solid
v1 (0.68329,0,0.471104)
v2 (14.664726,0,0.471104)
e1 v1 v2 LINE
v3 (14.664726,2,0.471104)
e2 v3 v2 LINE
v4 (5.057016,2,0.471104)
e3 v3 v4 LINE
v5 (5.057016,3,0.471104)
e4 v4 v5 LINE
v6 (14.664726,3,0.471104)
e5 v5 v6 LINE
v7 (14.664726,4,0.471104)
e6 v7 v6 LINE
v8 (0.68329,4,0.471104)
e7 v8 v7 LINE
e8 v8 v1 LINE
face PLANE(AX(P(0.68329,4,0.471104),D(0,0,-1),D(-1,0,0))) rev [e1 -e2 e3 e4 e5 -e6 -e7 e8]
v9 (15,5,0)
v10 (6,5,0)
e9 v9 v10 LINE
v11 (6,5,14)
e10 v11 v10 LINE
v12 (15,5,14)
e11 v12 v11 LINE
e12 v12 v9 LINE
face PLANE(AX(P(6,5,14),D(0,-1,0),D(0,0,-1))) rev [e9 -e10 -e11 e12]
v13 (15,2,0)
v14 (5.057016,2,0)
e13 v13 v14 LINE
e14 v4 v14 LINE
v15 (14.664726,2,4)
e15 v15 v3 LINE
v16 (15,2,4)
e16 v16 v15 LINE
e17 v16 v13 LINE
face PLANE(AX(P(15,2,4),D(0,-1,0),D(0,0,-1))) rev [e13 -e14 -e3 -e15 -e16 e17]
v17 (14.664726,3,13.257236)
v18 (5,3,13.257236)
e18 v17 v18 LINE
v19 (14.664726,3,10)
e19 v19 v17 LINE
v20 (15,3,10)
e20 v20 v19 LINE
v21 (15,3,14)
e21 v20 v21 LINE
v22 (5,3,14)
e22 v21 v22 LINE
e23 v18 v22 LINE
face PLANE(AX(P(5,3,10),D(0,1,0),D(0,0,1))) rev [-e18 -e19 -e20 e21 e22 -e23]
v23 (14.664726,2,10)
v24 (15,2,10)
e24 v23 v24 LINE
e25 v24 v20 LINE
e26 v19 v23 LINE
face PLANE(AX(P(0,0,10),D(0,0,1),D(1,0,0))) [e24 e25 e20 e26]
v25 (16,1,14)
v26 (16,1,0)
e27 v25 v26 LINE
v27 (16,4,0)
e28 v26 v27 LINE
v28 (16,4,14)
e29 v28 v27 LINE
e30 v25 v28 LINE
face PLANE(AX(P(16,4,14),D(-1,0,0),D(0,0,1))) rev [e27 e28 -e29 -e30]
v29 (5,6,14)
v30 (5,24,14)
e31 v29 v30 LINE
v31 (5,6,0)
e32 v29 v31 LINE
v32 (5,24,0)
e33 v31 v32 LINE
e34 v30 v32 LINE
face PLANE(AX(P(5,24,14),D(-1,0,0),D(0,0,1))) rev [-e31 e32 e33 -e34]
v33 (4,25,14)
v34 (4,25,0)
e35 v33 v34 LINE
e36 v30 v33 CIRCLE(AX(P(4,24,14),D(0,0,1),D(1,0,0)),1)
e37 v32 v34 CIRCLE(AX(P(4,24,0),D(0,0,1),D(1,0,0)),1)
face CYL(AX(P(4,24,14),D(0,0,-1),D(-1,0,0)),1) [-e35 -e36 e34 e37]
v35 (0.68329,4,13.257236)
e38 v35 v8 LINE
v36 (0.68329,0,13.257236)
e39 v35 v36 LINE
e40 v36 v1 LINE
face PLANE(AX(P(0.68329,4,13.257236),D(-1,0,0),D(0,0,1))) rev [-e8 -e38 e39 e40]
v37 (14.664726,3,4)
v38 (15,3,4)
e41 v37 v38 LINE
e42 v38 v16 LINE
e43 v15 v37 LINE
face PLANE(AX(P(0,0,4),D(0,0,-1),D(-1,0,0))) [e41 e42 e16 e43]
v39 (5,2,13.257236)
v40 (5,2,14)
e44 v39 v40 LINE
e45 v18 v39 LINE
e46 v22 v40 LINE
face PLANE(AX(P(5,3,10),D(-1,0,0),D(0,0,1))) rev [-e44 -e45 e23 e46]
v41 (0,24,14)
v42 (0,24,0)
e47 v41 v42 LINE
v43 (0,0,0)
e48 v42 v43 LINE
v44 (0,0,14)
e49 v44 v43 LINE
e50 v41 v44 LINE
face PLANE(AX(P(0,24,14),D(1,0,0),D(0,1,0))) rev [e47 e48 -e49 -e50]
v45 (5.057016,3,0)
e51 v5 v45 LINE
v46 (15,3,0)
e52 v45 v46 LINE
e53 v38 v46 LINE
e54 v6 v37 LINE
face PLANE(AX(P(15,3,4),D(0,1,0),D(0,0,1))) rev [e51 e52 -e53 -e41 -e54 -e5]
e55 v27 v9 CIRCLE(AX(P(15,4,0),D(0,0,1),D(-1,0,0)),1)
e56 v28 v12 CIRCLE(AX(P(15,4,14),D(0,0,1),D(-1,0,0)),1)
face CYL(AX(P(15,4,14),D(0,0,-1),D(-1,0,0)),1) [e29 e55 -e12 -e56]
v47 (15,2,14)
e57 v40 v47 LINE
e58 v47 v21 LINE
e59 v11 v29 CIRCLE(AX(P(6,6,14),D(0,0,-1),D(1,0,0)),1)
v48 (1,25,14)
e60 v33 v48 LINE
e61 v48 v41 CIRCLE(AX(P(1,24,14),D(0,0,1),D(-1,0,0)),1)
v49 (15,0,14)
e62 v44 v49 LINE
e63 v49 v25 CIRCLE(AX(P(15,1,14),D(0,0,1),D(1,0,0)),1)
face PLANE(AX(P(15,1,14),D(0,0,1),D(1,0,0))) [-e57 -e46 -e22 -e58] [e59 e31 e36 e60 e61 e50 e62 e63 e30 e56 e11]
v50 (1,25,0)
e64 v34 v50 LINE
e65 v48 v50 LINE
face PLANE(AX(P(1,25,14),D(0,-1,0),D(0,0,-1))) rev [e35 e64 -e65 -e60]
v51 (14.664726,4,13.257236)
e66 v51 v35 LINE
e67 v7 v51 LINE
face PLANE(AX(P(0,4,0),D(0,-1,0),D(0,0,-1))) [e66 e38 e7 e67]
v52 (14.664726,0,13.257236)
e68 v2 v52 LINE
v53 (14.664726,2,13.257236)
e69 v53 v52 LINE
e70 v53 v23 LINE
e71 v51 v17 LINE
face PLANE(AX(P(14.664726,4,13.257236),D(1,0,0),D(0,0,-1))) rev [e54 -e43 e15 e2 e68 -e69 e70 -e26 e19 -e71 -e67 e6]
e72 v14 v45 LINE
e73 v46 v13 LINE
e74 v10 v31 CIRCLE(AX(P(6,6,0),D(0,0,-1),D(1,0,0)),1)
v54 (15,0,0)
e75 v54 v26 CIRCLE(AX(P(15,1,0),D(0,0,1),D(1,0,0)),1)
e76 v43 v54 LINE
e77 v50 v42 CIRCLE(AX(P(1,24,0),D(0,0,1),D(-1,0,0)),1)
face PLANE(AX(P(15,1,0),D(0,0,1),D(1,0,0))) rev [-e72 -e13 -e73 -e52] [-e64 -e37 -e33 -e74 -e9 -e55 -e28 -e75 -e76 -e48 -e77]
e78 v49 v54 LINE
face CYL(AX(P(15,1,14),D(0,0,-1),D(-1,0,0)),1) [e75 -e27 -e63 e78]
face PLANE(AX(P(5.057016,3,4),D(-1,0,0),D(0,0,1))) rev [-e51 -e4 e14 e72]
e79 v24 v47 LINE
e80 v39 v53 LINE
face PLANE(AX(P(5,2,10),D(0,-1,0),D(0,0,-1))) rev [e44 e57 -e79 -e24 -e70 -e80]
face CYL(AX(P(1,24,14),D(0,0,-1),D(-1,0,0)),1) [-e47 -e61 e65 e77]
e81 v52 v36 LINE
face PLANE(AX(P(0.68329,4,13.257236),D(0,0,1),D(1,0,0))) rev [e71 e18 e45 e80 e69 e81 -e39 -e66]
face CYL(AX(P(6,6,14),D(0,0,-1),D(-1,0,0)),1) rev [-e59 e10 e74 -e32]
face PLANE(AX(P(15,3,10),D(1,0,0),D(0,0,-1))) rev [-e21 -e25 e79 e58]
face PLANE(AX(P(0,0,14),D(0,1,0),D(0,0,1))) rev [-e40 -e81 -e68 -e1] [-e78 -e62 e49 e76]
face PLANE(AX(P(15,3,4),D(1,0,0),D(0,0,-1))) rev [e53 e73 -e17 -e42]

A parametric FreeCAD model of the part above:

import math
import FreeCAD as App
import Part
import Sketcher
Q = App.Units.Quantity

doc = App.newDocument("Part")
body = doc.addObject("PartDesign::Body", "Body")

sketch1 = body.newObject("Sketcher::SketchObject", "Sketch")
sketch1.AttachmentSupport = (doc.getObject("XY_Plane"), [""])
sketch1.MapMode = "FlatFace"
sketch1.addGeometry(Part.LineSegment(App.Vector(0, 24, 0), App.Vector(0, 0, 0)), False)
sketch1.addGeometry(Part.LineSegment(App.Vector(0, 0, 0), App.Vector(15, 0, 0)), False)
sketch1.addGeometry(Part.ArcOfCircle(Part.Circle(App.Vector(15, 1, 0), App.Vector(0, 0, 1), 1), math.radians(-90), math.radians(0)), False)
sketch1.addGeometry(Part.LineSegment(App.Vector(16, 1, 0), App.Vector(16, 4, 0)), False)
sketch1.addGeometry(Part.ArcOfCircle(Part.Circle(App.Vector(15, 4, 0), App.Vector(0, 0, 1), 1), math.radians(0), math.radians(90)), False)
sketch1.addGeometry(Part.LineSegment(App.Vector(15, 5, 0), App.Vector(6, 5, 0)), False)
sketch1.addGeometry(Part.ArcOfCircle(Part.Circle(App.Vector(6, 6, 0), App.Vector(0, 0, 1), 1), math.radians(-180), math.radians(-90)), False)
sketch1.addGeometry(Part.LineSegment(App.Vector(5, 6, 0), App.Vector(5, 24, 0)), False)
sketch1.addGeometry(Part.ArcOfCircle(Part.Circle(App.Vector(4, 24, 0), App.Vector(0, 0, 1), 1), math.radians(0), math.radians(90)), False)
sketch1.addGeometry(Part.LineSegment(App.Vector(4, 25, 0), App.Vector(1, 25, 0)), False)
sketch1.addGeometry(Part.ArcOfCircle(Part.Circle(App.Vector(1, 24, 0), App.Vector(0, 0, 1), 1), math.radians(90), math.radians(180)), False)
sketch1.addConstraint(Sketcher.Constraint("Coincident", 0, 2, 1, 1))
sketch1.addConstraint(Sketcher.Constraint("Tangent", 1, 2, 2, 1))
sketch1.addConstraint(Sketcher.Constraint("Tangent", 2, 2, 3, 1))
sketch1.addConstraint(Sketcher.Constraint("Tangent", 3, 2, 4, 1))
sketch1.addConstraint(Sketcher.Constraint("Tangent", 4, 2, 5, 1))
sketch1.addConstraint(Sketcher.Constraint("Tangent", 5, 2, 6, 2))
sketch1.addConstraint(Sketcher.Constraint("Tangent", 6, 1, 7, 1))
sketch1.addConstraint(Sketcher.Constraint("Tangent", 7, 2, 8, 1))
sketch1.addConstraint(Sketcher.Constraint("Tangent", 8, 2, 9, 1))
sketch1.addConstraint(Sketcher.Constraint("Tangent", 9, 2, 10, 1))
sketch1.addConstraint(Sketcher.Constraint("Tangent", 10, 2, 0, 1))
sketch1.addConstraint(Sketcher.Constraint("Vertical", 0))
sketch1.addConstraint(Sketcher.Constraint("Horizontal", 1))
sketch1.addConstraint(Sketcher.Constraint("Vertical", 3))
sketch1.addConstraint(Sketcher.Constraint("Horizontal", 5))
sketch1.addConstraint(Sketcher.Constraint("Vertical", 7))
sketch1.addConstraint(Sketcher.Constraint("Horizontal", 9))
sketch1.addConstraint(Sketcher.Constraint("Coincident", 0, 2, -1, 1))
sketch1.addConstraint(Sketcher.Constraint("Equal", 2, 4))
sketch1.addConstraint(Sketcher.Constraint("Equal", 4, 6))
sketch1.addConstraint(Sketcher.Constraint("Equal", 6, 8))
sketch1.addConstraint(Sketcher.Constraint("Equal", 8, 10))
sketch1.addConstraint(Sketcher.Constraint("Equal", 9, 3))
sketch1.addConstraint(Sketcher.Constraint("Radius", 2, Q("1 mm")))
sketch1.addConstraint(Sketcher.Constraint("DistanceX", 1, 1, 1, 2, Q("15 mm")))
sketch1.addConstraint(Sketcher.Constraint("DistanceX", 5, 2, 5, 1, Q("9 mm")))
sketch1.addConstraint(Sketcher.Constraint("DistanceY", 0, 2, 0, 1, Q("24 mm")))
pad1 = body.newObject("PartDesign::Pad", "Pad")
pad1.Profile = sketch1
pad1.Length = 14

sketch2 = body.newObject("Sketcher::SketchObject", "Sketch001")
sketch2.AttachmentSupport = (doc.getObject("XZ_Plane"), [""])
sketch2.MapMode = "FlatFace"
sketch2.addGeometry(Part.LineSegment(App.Vector(1, 13, 0), App.Vector(1, 0, 0)), False)
sketch2.addGeometry(Part.LineSegment(App.Vector(1, 0, 0), App.Vector(15, 0, 0)), False)
sketch2.addGeometry(Part.LineSegment(App.Vector(15, 0, 0), App.Vector(15, 13, 0)), False)
sketch2.addGeometry(Part.LineSegment(App.Vector(15, 13, 0), App.Vector(1, 13, 0)), False)
sketch2.addConstraint(Sketcher.Constraint("Coincident", 0, 2, 1, 1))
sketch2.addConstraint(Sketcher.Constraint("Coincident", 1, 2, 2, 1))
sketch2.addConstraint(Sketcher.Constraint("Coincident", 2, 2, 3, 1))
sketch2.addConstraint(Sketcher.Constraint("Coincident", 3, 2, 0, 1))
sketch2.addConstraint(Sketcher.Constraint("Vertical", 0))
sketch2.addConstraint(Sketcher.Constraint("Horizontal", 1))
sketch2.addConstraint(Sketcher.Constraint("Vertical", 2))
sketch2.addConstraint(Sketcher.Constraint("Horizontal", 3))
sketch2.addConstraint(Sketcher.Constraint("DistanceX", 1, 1, 1, 2, Q("13.981437 mm")))
sketch2.addConstraint(Sketcher.Constraint("DistanceY", 0, 2, 0, 1, Q("12.786132 mm")))
sketch2.addConstraint(Sketcher.Constraint("DistanceX", -1, 1, 0, 2, Q("0.68329 mm")))
sketch2.addConstraint(Sketcher.Constraint("DistanceY", -1, 1, 0, 2, Q("0.471104 mm")))
pocket1 = body.newObject("PartDesign::Pocket", "Pocket")
pocket1.Profile = sketch2
pocket1.Length = 4

sketch3 = body.newObject("Sketcher::SketchObject", "Sketch002")
sketch3.AttachmentSupport = (doc.getObject("XY_Plane"), [""])
sketch3.MapMode = "FlatFace"
sketch3.AttachmentOffset = App.Placement(App.Vector(0, 0, 14), App.Rotation())
sketch3.addGeometry(Part.LineSegment(App.Vector(5, 3, 0), App.Vector(5, 2, 0)), False)
sketch3.addGeometry(Part.LineSegment(App.Vector(5, 2, 0), App.Vector(15, 2, 0)), False)
sketch3.addGeometry(Part.LineSegment(App.Vector(15, 2, 0), App.Vector(15, 3, 0)), False)
sketch3.addGeometry(Part.LineSegment(App.Vector(15, 3, 0), App.Vector(5, 3, 0)), False)
sketch3.addConstraint(Sketcher.Constraint("Coincident", 0, 2, 1, 1))
sketch3.addConstraint(Sketcher.Constraint("Coincident", 1, 2, 2, 1))
sketch3.addConstraint(Sketcher.Constraint("Coincident", 2, 2, 3, 1))
sketch3.addConstraint(Sketcher.Constraint("Coincident", 3, 2, 0, 1))
sketch3.addConstraint(Sketcher.Constraint("Vertical", 0))
sketch3.addConstraint(Sketcher.Constraint("Horizontal", 1))
sketch3.addConstraint(Sketcher.Constraint("Vertical", 2))
sketch3.addConstraint(Sketcher.Constraint("Horizontal", 3))
sketch3.addConstraint(Sketcher.Constraint("DistanceX", 1, 1, 1, 2, Q("10 mm")))
sketch3.addConstraint(Sketcher.Constraint("DistanceY", 0, 2, 0, 1, Q("1 mm")))
sketch3.addConstraint(Sketcher.Constraint("DistanceX", -1, 1, 0, 2, Q("5 mm")))
sketch3.addConstraint(Sketcher.Constraint("DistanceY", -1, 1, 0, 2, Q("2 mm")))
pocket2 = body.newObject("PartDesign::Pocket", "Pocket001")
pocket2.Profile = sketch3
pocket2.Length = 4

sketch4 = body.newObject("Sketcher::SketchObject", "Sketch003")
sketch4.AttachmentSupport = (doc.getObject("XY_Plane"), [""])
sketch4.MapMode = "FlatFace"
sketch4.addGeometry(Part.LineSegment(App.Vector(15, 3, 0), App.Vector(15, 2, 0)), False)
sketch4.addGeometry(Part.LineSegment(App.Vector(15, 2, 0), App.Vector(7, 2, 0)), False)
sketch4.addGeometry(Part.LineSegment(App.Vector(7, 2, 0), App.Vector(7, 3, 0)), False)
sketch4.addGeometry(Part.LineSegment(App.Vector(7, 3, 0), App.Vector(15, 3, 0)), False)
sketch4.addConstraint(Sketcher.Constraint("Coincident", 0, 2, 1, 1))
sketch4.addConstraint(Sketcher.Constraint("Coincident", 1, 2, 2, 1))
sketch4.addConstraint(Sketcher.Constraint("Coincident", 2, 2, 3, 1))
sketch4.addConstraint(Sketcher.Constraint("Coincident", 3, 2, 0, 1))
sketch4.addConstraint(Sketcher.Constraint("Vertical", 0))
sketch4.addConstraint(Sketcher.Constraint("Horizontal", 1))
sketch4.addConstraint(Sketcher.Constraint("Vertical", 2))
sketch4.addConstraint(Sketcher.Constraint("Horizontal", 3))
sketch4.addConstraint(Sketcher.Constraint("DistanceX", 1, 2, 1, 1, Q("8 mm")))
sketch4.addConstraint(Sketcher.Constraint("DistanceY", 0, 2, 0, 1, Q("1 mm")))
sketch4.addConstraint(Sketcher.Constraint("DistanceX", -1, 1, 0, 2, Q("15 mm")))
sketch4.addConstraint(Sketcher.Constraint("DistanceY", -1, 1, 0, 2, Q("2 mm")))
pocket3 = body.newObject("PartDesign::Pocket", "Pocket002")
pocket3.Profile = sketch4
pocket3.Length = 4
pocket3.Reversed = True

sketch5 = body.newObject("Sketcher::SketchObject", "Sketch004")
sketch5.AttachmentSupport = (doc.getObject("XY_Plane"), [""])
sketch5.MapMode = "FlatFace"
sketch5.addGeometry(Part.LineSegment(App.Vector(7, 3, 0), App.Vector(7, 2, 0)), False)
sketch5.addGeometry(Part.LineSegment(App.Vector(7, 2, 0), App.Vector(5.1, 2, 0)), False)
sketch5.addGeometry(Part.LineSegment(App.Vector(5.1, 2, 0), App.Vector(5.1, 3, 0)), False)
sketch5.addGeometry(Part.LineSegment(App.Vector(5.1, 3, 0), App.Vector(7, 3, 0)), False)
sketch5.addConstraint(Sketcher.Constraint("Coincident", 0, 2, 1, 1))
sketch5.addConstraint(Sketcher.Constraint("Coincident", 1, 2, 2, 1))
sketch5.addConstraint(Sketcher.Constraint("Coincident", 2, 2, 3, 1))
sketch5.addConstraint(Sketcher.Constraint("Coincident", 3, 2, 0, 1))
sketch5.addConstraint(Sketcher.Constraint("Vertical", 0))
sketch5.addConstraint(Sketcher.Constraint("Horizontal", 1))
sketch5.addConstraint(Sketcher.Constraint("Vertical", 2))
sketch5.addConstraint(Sketcher.Constraint("Horizontal", 3))
sketch5.addConstraint(Sketcher.Constraint("DistanceY", 0, 2, 0, 1, Q("1 mm")))
sketch5.addConstraint(Sketcher.Constraint("DistanceX", -1, 1, 0, 2, Q("7 mm")))
sketch5.addConstraint(Sketcher.Constraint("DistanceY", -1, 1, 0, 2, Q("2 mm")))
sketch5.addConstraint(Sketcher.Constraint("DistanceX", 1, 2, 1, 1, Q("1.942984 mm")))
pocket4 = body.newObject("PartDesign::Pocket", "Pocket003")
pocket4.Profile = sketch5
pocket4.Length = 4
pocket4.Reversed = True

doc.recompute()
